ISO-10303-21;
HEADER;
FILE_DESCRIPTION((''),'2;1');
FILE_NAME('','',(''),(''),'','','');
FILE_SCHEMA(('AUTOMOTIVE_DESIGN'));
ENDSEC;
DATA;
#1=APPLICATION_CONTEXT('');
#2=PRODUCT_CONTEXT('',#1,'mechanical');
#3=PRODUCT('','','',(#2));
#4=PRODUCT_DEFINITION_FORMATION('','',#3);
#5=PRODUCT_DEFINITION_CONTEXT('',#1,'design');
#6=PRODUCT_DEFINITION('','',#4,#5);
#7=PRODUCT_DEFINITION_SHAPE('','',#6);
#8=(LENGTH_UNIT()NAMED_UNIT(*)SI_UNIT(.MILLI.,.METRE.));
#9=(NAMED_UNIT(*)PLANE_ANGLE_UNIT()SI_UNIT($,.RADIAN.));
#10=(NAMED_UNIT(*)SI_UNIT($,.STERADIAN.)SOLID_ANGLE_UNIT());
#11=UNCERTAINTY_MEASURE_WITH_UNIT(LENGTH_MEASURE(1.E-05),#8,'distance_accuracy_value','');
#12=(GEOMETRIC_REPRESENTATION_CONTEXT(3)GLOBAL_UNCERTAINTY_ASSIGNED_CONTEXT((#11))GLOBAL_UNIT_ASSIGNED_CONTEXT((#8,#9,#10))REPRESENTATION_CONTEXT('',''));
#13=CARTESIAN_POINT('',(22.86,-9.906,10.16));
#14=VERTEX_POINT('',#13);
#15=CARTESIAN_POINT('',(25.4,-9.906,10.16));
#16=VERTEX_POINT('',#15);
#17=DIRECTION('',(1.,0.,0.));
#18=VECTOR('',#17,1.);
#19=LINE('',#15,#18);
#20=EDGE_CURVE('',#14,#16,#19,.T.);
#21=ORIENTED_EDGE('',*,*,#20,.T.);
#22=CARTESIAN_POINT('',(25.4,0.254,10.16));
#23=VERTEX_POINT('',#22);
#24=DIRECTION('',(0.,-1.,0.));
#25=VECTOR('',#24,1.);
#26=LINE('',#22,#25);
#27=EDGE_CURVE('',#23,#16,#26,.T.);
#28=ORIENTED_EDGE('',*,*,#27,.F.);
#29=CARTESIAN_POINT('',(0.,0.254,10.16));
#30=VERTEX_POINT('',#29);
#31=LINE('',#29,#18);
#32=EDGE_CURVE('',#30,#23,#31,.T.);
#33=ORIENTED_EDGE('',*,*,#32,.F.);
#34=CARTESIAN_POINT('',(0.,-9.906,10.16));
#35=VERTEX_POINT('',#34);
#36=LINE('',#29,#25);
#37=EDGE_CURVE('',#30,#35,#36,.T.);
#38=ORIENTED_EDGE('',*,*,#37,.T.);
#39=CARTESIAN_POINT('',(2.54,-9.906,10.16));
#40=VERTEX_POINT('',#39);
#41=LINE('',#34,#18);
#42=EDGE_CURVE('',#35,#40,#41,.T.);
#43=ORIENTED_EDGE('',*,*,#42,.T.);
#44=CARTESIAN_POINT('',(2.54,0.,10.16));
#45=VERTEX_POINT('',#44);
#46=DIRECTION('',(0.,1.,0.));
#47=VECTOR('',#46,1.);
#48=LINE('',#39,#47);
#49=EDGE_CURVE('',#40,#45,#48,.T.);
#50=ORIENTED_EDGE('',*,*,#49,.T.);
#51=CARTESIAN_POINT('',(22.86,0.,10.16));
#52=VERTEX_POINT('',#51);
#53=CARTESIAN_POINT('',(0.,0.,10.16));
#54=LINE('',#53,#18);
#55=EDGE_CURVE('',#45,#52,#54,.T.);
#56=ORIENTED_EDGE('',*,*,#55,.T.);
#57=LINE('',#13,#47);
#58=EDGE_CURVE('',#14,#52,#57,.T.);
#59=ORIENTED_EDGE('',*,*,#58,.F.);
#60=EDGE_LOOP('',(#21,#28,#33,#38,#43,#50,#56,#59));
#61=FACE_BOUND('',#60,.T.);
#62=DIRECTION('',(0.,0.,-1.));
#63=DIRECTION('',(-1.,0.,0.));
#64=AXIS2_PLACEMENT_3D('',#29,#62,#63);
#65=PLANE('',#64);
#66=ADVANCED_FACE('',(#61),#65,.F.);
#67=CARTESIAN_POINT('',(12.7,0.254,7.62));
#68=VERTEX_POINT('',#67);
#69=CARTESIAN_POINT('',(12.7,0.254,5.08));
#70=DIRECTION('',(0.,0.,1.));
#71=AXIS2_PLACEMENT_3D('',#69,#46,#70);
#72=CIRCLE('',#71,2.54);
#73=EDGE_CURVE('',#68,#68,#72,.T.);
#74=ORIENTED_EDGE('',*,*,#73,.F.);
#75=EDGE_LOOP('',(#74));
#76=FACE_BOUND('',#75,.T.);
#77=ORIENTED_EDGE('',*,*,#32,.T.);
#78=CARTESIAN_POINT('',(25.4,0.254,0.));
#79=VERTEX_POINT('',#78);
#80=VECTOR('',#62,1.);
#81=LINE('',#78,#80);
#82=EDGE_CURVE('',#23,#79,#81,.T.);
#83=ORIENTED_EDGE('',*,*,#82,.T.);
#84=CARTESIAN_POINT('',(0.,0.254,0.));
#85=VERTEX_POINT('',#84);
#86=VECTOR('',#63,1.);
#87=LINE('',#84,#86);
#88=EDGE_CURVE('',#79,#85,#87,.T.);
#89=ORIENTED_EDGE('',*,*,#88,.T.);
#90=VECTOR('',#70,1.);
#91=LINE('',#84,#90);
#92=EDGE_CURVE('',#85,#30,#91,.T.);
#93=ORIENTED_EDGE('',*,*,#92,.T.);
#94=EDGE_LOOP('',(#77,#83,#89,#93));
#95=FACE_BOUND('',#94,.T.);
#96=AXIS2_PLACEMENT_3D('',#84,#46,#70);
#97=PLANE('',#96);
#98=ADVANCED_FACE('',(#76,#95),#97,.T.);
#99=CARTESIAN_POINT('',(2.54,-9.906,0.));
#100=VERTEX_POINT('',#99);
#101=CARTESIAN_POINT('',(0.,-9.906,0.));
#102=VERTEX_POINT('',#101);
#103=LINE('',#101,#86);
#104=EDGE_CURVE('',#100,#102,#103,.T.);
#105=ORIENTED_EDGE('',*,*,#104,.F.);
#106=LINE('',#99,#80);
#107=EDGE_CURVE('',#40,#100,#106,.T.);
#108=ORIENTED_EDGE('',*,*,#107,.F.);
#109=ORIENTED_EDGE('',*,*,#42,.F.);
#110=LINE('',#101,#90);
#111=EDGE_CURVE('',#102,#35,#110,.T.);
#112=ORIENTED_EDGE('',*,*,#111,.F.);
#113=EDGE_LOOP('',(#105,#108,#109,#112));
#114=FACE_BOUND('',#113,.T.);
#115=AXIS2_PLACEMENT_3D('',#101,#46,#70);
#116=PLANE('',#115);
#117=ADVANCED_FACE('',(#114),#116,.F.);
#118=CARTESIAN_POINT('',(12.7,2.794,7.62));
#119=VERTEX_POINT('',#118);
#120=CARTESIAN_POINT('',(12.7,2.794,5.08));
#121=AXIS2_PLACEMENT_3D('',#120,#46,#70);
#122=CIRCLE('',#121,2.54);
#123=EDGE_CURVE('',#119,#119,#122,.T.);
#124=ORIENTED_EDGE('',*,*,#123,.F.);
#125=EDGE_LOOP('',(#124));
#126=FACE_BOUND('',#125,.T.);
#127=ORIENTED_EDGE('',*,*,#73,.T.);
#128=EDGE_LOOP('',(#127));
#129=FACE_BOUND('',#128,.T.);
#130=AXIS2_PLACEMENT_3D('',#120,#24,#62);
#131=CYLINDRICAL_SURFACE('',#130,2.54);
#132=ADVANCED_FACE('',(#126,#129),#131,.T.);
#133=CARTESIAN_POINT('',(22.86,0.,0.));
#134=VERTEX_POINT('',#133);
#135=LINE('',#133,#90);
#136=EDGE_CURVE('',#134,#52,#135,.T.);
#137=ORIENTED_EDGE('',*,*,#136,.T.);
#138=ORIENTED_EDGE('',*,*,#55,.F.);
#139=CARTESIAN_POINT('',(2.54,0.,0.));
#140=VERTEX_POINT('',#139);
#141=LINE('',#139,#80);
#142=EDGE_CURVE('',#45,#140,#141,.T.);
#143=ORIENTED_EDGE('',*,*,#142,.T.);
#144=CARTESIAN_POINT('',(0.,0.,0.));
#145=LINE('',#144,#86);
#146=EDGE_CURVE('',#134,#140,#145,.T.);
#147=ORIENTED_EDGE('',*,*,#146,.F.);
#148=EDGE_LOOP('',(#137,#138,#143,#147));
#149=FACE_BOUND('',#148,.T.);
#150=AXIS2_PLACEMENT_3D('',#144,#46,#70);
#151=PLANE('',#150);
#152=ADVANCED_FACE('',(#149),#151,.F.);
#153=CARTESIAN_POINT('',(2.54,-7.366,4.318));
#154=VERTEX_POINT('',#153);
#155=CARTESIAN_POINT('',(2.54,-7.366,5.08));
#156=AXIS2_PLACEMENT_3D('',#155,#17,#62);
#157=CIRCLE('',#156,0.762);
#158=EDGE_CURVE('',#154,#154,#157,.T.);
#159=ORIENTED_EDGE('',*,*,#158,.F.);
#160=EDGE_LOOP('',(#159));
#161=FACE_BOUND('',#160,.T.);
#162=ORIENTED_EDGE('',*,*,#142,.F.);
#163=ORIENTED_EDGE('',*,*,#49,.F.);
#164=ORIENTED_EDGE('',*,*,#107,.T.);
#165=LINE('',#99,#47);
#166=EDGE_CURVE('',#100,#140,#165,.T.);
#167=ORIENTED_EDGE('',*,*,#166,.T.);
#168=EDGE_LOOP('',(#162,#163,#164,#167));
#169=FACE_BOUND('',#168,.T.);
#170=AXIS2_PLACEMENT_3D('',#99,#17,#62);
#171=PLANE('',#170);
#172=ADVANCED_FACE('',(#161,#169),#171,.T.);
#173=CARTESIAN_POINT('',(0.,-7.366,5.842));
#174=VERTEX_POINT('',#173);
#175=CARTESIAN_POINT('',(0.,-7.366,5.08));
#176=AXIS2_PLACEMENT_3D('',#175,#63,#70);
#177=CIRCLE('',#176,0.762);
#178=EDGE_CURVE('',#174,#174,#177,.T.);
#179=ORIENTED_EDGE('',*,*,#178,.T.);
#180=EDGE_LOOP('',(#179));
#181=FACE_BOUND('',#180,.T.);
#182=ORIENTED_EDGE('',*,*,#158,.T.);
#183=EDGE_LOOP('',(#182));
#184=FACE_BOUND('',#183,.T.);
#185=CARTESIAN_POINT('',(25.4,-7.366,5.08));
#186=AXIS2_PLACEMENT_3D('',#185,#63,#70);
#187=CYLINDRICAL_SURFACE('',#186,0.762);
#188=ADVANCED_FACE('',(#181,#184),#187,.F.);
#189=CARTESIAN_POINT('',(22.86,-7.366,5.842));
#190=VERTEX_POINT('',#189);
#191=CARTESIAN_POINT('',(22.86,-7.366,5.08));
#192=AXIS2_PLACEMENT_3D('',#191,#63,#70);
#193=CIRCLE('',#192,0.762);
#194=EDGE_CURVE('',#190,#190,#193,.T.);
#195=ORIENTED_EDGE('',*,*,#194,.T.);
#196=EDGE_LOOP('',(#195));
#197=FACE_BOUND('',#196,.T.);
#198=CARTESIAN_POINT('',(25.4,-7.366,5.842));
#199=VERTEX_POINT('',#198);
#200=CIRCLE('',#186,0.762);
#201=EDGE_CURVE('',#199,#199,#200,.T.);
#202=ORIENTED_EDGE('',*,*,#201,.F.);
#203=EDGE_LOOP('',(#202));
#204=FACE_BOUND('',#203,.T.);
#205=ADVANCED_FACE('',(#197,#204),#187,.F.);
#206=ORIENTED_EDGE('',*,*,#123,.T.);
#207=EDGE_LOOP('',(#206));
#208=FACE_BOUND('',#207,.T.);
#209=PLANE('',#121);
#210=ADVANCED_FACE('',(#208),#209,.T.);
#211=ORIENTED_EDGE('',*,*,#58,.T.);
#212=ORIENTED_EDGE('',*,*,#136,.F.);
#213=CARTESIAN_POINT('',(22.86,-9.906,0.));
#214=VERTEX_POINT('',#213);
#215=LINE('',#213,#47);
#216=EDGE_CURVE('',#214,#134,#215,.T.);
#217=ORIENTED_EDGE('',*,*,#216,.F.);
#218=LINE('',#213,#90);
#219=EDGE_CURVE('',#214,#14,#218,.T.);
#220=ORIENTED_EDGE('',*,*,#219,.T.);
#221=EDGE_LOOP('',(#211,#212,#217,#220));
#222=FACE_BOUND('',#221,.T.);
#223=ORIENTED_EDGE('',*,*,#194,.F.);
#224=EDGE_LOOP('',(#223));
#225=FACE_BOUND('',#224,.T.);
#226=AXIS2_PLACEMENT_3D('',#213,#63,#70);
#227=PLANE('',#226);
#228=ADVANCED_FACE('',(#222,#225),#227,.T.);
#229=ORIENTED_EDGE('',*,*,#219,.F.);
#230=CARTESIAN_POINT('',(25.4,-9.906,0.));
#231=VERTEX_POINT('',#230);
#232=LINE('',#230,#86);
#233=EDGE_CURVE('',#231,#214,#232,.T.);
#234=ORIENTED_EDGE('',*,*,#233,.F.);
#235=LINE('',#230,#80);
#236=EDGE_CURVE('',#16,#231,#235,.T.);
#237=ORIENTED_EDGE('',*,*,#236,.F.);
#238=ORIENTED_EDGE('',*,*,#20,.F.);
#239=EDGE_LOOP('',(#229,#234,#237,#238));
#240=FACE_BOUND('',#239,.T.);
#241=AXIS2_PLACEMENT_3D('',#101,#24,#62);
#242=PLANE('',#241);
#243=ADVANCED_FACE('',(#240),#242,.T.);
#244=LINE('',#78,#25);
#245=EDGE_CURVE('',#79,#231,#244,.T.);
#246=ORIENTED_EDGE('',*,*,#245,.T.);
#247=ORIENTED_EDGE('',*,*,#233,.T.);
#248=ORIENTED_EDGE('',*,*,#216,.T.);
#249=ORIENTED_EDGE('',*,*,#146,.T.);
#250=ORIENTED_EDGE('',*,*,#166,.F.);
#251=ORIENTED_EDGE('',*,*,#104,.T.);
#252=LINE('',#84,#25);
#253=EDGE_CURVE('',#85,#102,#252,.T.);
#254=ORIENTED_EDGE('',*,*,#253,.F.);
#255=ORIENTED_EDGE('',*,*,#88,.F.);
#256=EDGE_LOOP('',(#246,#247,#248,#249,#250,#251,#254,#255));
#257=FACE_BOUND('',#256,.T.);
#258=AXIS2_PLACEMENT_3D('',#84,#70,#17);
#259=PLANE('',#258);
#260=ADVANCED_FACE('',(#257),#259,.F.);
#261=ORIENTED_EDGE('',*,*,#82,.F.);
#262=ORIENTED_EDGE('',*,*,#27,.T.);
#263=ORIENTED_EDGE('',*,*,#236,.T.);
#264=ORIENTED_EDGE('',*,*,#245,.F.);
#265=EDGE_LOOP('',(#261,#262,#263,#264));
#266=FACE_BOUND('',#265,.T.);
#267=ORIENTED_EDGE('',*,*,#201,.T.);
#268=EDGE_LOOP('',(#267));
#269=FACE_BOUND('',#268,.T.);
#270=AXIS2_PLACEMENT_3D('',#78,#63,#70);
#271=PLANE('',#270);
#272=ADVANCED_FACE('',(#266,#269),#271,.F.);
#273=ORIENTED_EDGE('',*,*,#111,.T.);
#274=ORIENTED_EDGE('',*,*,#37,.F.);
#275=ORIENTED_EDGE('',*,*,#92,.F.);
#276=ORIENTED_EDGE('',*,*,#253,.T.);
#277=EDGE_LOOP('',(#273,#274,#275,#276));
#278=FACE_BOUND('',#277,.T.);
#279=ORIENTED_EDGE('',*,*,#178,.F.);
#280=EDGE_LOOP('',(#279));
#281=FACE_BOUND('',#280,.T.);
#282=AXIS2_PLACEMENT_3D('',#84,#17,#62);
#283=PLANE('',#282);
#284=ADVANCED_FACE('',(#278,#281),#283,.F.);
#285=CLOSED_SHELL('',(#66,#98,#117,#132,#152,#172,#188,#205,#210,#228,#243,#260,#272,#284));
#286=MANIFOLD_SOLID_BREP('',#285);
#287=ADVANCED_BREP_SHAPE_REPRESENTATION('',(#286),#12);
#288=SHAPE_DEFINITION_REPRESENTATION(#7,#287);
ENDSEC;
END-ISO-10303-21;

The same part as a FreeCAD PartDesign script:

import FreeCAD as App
import Part
import Sketcher

V = App.Vector
Q = App.Units.Quantity


def add_polygon(sketch, points):
    """Adds a closed chain of lines whose ends are joined by coincident constraints."""
    first, n = sketch.GeometryCount, len(points)
    for a, b in zip(points, points[1:] + points[:1]):
        sketch.addGeometry(Part.LineSegment(App.Vector(*a, 0), App.Vector(*b, 0)), False)
    for i in range(n):
        sketch.addConstraint(Sketcher.Constraint("Coincident", first + i, 2, first + (i + 1) % n, 1))

doc = App.newDocument("Part")
body = doc.addObject("PartDesign::Body", "Body")

# Sketch on XZ plane
sketch1 = doc.addObject("Sketcher::SketchObject", "Sketch")
body.addObject(sketch1)
sketch1.AttachmentSupport = (doc.XZ_Plane, [""])
sketch1.MapMode = "FlatFace"
add_polygon(sketch1, [(0, 0), (0, 10), (25, 10), (25, 0)])  # lines 0-3
sketch1.addConstraint([
    Sketcher.Constraint("Vertical", 0),
    Sketcher.Constraint("Horizontal", 1),
    Sketcher.Constraint("Vertical", 2),
    Sketcher.Constraint("Horizontal", 3),
    Sketcher.Constraint("Coincident", 3, 2, -1, 1),
    Sketcher.Constraint("DistanceX", 1, 1, 1, 2, Q("1 in")),
    Sketcher.Constraint("DistanceY", 0, 1, 0, 2, Q("0.4 in")),
])
pad1 = doc.addObject("PartDesign::Pad", "Pad")
body.addObject(pad1)
pad1.Profile = sketch1
pad1.Length = Q("0.01 in")
pad1.Reversed = True

# Sketch on XZ plane
sketch2 = doc.addObject("Sketcher::SketchObject", "Sketch001")
body.addObject(sketch2)
sketch2.AttachmentSupport = (doc.XZ_Plane, [""])
sketch2.MapMode = "FlatFace"
sketch2.AttachmentOffset = App.Placement(V(0, 0, -0.01 * 25.4), App.Rotation())
sketch2.addGeometry(Part.Circle(V(12.7, 5.1, 0), V(0, 0, 1), 2.5), False)
sketch2.addConstraint([
    Sketcher.Constraint("Diameter", 0, Q("0.2 in")),
    Sketcher.Constraint("DistanceX", -1, 1, 0, 3, Q("0.5 in")),
    Sketcher.Constraint("DistanceY", -1, 1, 0, 3, Q("0.2 in")),
])
pad2 = doc.addObject("PartDesign::Pad", "Pad001")
body.addObject(pad2)
pad2.Profile = sketch2
pad2.Length = Q("0.1 in")
pad2.Reversed = True

# Sketch on XZ plane
sketch3 = doc.addObject("Sketcher::SketchObject", "Sketch002")
body.addObject(sketch3)
sketch3.AttachmentSupport = (doc.XZ_Plane, [""])
sketch3.MapMode = "FlatFace"
sketch3.AttachmentOffset = App.Placement(V(0, 0, -0.01 * 25.4), App.Rotation())
add_polygon(sketch3, [(0, 0), (0, 10.2), (2.5, 10.2), (2.5, 0)])  # lines 0-3
add_polygon(sketch3, [(22.9, 0), (22.9, 10.2), (25.4, 10.2), (25.4, 0)])  # lines 4-7
sketch3.addConstraint([
    Sketcher.Constraint("Vertical", 0),
    Sketcher.Constraint("Horizontal", 1),
    Sketcher.Constraint("Vertical", 2),
    Sketcher.Constraint("Horizontal", 3),
    Sketcher.Constraint("Vertical", 4),
    Sketcher.Constraint("Horizontal", 5),
    Sketcher.Constraint("Vertical", 6),
    Sketcher.Constraint("Horizontal", 7),
    Sketcher.Constraint("Coincident", 3, 2, -1, 1),
    Sketcher.Constraint("PointOnObject", 6, 2, -1),
    Sketcher.Constraint("Horizontal", 1, 2, 4, 2),
    Sketcher.Constraint("Equal", 3, 5),
    Sketcher.Constraint("DistanceX", 1, 1, 1, 2, Q("0.1 in")),
    Sketcher.Constraint("DistanceY", 0, 1, 0, 2, Q("0.4 in")),
    Sketcher.Constraint("DistanceX", -1, 1, 5, 2, Q("1 in")),
])
pad3 = doc.addObject("PartDesign::Pad", "Pad002")
body.addObject(pad3)
pad3.Profile = sketch3
pad3.Length = Q("0.4 in")

# Sketch on YZ plane
sketch4 = doc.addObject("Sketcher::SketchObject", "Sketch003")
body.addObject(sketch4)
sketch4.AttachmentSupport = (doc.YZ_Plane, [""])
sketch4.MapMode = "FlatFace"
sketch4.addGeometry(Part.Circle(V(-7.4, 5.1, 0), V(0, 0, 1), 0.8), False)
sketch4.addConstraint([
    Sketcher.Constraint("Diameter", 0, Q("0.06 in")),
    Sketcher.Constraint("DistanceY", -1, 1, 0, 3, Q("0.2 in")),
    Sketcher.Constraint("DistanceX", 0, 3, -1, 1, Q("0.29 in")),
])
pocket1 = doc.addObject("PartDesign::Pocket", "Pocket")
body.addObject(pocket1)
pocket1.Profile = sketch4
pocket1.Length = Q("1 in")
pocket1.Reversed = True

doc.recompute()
